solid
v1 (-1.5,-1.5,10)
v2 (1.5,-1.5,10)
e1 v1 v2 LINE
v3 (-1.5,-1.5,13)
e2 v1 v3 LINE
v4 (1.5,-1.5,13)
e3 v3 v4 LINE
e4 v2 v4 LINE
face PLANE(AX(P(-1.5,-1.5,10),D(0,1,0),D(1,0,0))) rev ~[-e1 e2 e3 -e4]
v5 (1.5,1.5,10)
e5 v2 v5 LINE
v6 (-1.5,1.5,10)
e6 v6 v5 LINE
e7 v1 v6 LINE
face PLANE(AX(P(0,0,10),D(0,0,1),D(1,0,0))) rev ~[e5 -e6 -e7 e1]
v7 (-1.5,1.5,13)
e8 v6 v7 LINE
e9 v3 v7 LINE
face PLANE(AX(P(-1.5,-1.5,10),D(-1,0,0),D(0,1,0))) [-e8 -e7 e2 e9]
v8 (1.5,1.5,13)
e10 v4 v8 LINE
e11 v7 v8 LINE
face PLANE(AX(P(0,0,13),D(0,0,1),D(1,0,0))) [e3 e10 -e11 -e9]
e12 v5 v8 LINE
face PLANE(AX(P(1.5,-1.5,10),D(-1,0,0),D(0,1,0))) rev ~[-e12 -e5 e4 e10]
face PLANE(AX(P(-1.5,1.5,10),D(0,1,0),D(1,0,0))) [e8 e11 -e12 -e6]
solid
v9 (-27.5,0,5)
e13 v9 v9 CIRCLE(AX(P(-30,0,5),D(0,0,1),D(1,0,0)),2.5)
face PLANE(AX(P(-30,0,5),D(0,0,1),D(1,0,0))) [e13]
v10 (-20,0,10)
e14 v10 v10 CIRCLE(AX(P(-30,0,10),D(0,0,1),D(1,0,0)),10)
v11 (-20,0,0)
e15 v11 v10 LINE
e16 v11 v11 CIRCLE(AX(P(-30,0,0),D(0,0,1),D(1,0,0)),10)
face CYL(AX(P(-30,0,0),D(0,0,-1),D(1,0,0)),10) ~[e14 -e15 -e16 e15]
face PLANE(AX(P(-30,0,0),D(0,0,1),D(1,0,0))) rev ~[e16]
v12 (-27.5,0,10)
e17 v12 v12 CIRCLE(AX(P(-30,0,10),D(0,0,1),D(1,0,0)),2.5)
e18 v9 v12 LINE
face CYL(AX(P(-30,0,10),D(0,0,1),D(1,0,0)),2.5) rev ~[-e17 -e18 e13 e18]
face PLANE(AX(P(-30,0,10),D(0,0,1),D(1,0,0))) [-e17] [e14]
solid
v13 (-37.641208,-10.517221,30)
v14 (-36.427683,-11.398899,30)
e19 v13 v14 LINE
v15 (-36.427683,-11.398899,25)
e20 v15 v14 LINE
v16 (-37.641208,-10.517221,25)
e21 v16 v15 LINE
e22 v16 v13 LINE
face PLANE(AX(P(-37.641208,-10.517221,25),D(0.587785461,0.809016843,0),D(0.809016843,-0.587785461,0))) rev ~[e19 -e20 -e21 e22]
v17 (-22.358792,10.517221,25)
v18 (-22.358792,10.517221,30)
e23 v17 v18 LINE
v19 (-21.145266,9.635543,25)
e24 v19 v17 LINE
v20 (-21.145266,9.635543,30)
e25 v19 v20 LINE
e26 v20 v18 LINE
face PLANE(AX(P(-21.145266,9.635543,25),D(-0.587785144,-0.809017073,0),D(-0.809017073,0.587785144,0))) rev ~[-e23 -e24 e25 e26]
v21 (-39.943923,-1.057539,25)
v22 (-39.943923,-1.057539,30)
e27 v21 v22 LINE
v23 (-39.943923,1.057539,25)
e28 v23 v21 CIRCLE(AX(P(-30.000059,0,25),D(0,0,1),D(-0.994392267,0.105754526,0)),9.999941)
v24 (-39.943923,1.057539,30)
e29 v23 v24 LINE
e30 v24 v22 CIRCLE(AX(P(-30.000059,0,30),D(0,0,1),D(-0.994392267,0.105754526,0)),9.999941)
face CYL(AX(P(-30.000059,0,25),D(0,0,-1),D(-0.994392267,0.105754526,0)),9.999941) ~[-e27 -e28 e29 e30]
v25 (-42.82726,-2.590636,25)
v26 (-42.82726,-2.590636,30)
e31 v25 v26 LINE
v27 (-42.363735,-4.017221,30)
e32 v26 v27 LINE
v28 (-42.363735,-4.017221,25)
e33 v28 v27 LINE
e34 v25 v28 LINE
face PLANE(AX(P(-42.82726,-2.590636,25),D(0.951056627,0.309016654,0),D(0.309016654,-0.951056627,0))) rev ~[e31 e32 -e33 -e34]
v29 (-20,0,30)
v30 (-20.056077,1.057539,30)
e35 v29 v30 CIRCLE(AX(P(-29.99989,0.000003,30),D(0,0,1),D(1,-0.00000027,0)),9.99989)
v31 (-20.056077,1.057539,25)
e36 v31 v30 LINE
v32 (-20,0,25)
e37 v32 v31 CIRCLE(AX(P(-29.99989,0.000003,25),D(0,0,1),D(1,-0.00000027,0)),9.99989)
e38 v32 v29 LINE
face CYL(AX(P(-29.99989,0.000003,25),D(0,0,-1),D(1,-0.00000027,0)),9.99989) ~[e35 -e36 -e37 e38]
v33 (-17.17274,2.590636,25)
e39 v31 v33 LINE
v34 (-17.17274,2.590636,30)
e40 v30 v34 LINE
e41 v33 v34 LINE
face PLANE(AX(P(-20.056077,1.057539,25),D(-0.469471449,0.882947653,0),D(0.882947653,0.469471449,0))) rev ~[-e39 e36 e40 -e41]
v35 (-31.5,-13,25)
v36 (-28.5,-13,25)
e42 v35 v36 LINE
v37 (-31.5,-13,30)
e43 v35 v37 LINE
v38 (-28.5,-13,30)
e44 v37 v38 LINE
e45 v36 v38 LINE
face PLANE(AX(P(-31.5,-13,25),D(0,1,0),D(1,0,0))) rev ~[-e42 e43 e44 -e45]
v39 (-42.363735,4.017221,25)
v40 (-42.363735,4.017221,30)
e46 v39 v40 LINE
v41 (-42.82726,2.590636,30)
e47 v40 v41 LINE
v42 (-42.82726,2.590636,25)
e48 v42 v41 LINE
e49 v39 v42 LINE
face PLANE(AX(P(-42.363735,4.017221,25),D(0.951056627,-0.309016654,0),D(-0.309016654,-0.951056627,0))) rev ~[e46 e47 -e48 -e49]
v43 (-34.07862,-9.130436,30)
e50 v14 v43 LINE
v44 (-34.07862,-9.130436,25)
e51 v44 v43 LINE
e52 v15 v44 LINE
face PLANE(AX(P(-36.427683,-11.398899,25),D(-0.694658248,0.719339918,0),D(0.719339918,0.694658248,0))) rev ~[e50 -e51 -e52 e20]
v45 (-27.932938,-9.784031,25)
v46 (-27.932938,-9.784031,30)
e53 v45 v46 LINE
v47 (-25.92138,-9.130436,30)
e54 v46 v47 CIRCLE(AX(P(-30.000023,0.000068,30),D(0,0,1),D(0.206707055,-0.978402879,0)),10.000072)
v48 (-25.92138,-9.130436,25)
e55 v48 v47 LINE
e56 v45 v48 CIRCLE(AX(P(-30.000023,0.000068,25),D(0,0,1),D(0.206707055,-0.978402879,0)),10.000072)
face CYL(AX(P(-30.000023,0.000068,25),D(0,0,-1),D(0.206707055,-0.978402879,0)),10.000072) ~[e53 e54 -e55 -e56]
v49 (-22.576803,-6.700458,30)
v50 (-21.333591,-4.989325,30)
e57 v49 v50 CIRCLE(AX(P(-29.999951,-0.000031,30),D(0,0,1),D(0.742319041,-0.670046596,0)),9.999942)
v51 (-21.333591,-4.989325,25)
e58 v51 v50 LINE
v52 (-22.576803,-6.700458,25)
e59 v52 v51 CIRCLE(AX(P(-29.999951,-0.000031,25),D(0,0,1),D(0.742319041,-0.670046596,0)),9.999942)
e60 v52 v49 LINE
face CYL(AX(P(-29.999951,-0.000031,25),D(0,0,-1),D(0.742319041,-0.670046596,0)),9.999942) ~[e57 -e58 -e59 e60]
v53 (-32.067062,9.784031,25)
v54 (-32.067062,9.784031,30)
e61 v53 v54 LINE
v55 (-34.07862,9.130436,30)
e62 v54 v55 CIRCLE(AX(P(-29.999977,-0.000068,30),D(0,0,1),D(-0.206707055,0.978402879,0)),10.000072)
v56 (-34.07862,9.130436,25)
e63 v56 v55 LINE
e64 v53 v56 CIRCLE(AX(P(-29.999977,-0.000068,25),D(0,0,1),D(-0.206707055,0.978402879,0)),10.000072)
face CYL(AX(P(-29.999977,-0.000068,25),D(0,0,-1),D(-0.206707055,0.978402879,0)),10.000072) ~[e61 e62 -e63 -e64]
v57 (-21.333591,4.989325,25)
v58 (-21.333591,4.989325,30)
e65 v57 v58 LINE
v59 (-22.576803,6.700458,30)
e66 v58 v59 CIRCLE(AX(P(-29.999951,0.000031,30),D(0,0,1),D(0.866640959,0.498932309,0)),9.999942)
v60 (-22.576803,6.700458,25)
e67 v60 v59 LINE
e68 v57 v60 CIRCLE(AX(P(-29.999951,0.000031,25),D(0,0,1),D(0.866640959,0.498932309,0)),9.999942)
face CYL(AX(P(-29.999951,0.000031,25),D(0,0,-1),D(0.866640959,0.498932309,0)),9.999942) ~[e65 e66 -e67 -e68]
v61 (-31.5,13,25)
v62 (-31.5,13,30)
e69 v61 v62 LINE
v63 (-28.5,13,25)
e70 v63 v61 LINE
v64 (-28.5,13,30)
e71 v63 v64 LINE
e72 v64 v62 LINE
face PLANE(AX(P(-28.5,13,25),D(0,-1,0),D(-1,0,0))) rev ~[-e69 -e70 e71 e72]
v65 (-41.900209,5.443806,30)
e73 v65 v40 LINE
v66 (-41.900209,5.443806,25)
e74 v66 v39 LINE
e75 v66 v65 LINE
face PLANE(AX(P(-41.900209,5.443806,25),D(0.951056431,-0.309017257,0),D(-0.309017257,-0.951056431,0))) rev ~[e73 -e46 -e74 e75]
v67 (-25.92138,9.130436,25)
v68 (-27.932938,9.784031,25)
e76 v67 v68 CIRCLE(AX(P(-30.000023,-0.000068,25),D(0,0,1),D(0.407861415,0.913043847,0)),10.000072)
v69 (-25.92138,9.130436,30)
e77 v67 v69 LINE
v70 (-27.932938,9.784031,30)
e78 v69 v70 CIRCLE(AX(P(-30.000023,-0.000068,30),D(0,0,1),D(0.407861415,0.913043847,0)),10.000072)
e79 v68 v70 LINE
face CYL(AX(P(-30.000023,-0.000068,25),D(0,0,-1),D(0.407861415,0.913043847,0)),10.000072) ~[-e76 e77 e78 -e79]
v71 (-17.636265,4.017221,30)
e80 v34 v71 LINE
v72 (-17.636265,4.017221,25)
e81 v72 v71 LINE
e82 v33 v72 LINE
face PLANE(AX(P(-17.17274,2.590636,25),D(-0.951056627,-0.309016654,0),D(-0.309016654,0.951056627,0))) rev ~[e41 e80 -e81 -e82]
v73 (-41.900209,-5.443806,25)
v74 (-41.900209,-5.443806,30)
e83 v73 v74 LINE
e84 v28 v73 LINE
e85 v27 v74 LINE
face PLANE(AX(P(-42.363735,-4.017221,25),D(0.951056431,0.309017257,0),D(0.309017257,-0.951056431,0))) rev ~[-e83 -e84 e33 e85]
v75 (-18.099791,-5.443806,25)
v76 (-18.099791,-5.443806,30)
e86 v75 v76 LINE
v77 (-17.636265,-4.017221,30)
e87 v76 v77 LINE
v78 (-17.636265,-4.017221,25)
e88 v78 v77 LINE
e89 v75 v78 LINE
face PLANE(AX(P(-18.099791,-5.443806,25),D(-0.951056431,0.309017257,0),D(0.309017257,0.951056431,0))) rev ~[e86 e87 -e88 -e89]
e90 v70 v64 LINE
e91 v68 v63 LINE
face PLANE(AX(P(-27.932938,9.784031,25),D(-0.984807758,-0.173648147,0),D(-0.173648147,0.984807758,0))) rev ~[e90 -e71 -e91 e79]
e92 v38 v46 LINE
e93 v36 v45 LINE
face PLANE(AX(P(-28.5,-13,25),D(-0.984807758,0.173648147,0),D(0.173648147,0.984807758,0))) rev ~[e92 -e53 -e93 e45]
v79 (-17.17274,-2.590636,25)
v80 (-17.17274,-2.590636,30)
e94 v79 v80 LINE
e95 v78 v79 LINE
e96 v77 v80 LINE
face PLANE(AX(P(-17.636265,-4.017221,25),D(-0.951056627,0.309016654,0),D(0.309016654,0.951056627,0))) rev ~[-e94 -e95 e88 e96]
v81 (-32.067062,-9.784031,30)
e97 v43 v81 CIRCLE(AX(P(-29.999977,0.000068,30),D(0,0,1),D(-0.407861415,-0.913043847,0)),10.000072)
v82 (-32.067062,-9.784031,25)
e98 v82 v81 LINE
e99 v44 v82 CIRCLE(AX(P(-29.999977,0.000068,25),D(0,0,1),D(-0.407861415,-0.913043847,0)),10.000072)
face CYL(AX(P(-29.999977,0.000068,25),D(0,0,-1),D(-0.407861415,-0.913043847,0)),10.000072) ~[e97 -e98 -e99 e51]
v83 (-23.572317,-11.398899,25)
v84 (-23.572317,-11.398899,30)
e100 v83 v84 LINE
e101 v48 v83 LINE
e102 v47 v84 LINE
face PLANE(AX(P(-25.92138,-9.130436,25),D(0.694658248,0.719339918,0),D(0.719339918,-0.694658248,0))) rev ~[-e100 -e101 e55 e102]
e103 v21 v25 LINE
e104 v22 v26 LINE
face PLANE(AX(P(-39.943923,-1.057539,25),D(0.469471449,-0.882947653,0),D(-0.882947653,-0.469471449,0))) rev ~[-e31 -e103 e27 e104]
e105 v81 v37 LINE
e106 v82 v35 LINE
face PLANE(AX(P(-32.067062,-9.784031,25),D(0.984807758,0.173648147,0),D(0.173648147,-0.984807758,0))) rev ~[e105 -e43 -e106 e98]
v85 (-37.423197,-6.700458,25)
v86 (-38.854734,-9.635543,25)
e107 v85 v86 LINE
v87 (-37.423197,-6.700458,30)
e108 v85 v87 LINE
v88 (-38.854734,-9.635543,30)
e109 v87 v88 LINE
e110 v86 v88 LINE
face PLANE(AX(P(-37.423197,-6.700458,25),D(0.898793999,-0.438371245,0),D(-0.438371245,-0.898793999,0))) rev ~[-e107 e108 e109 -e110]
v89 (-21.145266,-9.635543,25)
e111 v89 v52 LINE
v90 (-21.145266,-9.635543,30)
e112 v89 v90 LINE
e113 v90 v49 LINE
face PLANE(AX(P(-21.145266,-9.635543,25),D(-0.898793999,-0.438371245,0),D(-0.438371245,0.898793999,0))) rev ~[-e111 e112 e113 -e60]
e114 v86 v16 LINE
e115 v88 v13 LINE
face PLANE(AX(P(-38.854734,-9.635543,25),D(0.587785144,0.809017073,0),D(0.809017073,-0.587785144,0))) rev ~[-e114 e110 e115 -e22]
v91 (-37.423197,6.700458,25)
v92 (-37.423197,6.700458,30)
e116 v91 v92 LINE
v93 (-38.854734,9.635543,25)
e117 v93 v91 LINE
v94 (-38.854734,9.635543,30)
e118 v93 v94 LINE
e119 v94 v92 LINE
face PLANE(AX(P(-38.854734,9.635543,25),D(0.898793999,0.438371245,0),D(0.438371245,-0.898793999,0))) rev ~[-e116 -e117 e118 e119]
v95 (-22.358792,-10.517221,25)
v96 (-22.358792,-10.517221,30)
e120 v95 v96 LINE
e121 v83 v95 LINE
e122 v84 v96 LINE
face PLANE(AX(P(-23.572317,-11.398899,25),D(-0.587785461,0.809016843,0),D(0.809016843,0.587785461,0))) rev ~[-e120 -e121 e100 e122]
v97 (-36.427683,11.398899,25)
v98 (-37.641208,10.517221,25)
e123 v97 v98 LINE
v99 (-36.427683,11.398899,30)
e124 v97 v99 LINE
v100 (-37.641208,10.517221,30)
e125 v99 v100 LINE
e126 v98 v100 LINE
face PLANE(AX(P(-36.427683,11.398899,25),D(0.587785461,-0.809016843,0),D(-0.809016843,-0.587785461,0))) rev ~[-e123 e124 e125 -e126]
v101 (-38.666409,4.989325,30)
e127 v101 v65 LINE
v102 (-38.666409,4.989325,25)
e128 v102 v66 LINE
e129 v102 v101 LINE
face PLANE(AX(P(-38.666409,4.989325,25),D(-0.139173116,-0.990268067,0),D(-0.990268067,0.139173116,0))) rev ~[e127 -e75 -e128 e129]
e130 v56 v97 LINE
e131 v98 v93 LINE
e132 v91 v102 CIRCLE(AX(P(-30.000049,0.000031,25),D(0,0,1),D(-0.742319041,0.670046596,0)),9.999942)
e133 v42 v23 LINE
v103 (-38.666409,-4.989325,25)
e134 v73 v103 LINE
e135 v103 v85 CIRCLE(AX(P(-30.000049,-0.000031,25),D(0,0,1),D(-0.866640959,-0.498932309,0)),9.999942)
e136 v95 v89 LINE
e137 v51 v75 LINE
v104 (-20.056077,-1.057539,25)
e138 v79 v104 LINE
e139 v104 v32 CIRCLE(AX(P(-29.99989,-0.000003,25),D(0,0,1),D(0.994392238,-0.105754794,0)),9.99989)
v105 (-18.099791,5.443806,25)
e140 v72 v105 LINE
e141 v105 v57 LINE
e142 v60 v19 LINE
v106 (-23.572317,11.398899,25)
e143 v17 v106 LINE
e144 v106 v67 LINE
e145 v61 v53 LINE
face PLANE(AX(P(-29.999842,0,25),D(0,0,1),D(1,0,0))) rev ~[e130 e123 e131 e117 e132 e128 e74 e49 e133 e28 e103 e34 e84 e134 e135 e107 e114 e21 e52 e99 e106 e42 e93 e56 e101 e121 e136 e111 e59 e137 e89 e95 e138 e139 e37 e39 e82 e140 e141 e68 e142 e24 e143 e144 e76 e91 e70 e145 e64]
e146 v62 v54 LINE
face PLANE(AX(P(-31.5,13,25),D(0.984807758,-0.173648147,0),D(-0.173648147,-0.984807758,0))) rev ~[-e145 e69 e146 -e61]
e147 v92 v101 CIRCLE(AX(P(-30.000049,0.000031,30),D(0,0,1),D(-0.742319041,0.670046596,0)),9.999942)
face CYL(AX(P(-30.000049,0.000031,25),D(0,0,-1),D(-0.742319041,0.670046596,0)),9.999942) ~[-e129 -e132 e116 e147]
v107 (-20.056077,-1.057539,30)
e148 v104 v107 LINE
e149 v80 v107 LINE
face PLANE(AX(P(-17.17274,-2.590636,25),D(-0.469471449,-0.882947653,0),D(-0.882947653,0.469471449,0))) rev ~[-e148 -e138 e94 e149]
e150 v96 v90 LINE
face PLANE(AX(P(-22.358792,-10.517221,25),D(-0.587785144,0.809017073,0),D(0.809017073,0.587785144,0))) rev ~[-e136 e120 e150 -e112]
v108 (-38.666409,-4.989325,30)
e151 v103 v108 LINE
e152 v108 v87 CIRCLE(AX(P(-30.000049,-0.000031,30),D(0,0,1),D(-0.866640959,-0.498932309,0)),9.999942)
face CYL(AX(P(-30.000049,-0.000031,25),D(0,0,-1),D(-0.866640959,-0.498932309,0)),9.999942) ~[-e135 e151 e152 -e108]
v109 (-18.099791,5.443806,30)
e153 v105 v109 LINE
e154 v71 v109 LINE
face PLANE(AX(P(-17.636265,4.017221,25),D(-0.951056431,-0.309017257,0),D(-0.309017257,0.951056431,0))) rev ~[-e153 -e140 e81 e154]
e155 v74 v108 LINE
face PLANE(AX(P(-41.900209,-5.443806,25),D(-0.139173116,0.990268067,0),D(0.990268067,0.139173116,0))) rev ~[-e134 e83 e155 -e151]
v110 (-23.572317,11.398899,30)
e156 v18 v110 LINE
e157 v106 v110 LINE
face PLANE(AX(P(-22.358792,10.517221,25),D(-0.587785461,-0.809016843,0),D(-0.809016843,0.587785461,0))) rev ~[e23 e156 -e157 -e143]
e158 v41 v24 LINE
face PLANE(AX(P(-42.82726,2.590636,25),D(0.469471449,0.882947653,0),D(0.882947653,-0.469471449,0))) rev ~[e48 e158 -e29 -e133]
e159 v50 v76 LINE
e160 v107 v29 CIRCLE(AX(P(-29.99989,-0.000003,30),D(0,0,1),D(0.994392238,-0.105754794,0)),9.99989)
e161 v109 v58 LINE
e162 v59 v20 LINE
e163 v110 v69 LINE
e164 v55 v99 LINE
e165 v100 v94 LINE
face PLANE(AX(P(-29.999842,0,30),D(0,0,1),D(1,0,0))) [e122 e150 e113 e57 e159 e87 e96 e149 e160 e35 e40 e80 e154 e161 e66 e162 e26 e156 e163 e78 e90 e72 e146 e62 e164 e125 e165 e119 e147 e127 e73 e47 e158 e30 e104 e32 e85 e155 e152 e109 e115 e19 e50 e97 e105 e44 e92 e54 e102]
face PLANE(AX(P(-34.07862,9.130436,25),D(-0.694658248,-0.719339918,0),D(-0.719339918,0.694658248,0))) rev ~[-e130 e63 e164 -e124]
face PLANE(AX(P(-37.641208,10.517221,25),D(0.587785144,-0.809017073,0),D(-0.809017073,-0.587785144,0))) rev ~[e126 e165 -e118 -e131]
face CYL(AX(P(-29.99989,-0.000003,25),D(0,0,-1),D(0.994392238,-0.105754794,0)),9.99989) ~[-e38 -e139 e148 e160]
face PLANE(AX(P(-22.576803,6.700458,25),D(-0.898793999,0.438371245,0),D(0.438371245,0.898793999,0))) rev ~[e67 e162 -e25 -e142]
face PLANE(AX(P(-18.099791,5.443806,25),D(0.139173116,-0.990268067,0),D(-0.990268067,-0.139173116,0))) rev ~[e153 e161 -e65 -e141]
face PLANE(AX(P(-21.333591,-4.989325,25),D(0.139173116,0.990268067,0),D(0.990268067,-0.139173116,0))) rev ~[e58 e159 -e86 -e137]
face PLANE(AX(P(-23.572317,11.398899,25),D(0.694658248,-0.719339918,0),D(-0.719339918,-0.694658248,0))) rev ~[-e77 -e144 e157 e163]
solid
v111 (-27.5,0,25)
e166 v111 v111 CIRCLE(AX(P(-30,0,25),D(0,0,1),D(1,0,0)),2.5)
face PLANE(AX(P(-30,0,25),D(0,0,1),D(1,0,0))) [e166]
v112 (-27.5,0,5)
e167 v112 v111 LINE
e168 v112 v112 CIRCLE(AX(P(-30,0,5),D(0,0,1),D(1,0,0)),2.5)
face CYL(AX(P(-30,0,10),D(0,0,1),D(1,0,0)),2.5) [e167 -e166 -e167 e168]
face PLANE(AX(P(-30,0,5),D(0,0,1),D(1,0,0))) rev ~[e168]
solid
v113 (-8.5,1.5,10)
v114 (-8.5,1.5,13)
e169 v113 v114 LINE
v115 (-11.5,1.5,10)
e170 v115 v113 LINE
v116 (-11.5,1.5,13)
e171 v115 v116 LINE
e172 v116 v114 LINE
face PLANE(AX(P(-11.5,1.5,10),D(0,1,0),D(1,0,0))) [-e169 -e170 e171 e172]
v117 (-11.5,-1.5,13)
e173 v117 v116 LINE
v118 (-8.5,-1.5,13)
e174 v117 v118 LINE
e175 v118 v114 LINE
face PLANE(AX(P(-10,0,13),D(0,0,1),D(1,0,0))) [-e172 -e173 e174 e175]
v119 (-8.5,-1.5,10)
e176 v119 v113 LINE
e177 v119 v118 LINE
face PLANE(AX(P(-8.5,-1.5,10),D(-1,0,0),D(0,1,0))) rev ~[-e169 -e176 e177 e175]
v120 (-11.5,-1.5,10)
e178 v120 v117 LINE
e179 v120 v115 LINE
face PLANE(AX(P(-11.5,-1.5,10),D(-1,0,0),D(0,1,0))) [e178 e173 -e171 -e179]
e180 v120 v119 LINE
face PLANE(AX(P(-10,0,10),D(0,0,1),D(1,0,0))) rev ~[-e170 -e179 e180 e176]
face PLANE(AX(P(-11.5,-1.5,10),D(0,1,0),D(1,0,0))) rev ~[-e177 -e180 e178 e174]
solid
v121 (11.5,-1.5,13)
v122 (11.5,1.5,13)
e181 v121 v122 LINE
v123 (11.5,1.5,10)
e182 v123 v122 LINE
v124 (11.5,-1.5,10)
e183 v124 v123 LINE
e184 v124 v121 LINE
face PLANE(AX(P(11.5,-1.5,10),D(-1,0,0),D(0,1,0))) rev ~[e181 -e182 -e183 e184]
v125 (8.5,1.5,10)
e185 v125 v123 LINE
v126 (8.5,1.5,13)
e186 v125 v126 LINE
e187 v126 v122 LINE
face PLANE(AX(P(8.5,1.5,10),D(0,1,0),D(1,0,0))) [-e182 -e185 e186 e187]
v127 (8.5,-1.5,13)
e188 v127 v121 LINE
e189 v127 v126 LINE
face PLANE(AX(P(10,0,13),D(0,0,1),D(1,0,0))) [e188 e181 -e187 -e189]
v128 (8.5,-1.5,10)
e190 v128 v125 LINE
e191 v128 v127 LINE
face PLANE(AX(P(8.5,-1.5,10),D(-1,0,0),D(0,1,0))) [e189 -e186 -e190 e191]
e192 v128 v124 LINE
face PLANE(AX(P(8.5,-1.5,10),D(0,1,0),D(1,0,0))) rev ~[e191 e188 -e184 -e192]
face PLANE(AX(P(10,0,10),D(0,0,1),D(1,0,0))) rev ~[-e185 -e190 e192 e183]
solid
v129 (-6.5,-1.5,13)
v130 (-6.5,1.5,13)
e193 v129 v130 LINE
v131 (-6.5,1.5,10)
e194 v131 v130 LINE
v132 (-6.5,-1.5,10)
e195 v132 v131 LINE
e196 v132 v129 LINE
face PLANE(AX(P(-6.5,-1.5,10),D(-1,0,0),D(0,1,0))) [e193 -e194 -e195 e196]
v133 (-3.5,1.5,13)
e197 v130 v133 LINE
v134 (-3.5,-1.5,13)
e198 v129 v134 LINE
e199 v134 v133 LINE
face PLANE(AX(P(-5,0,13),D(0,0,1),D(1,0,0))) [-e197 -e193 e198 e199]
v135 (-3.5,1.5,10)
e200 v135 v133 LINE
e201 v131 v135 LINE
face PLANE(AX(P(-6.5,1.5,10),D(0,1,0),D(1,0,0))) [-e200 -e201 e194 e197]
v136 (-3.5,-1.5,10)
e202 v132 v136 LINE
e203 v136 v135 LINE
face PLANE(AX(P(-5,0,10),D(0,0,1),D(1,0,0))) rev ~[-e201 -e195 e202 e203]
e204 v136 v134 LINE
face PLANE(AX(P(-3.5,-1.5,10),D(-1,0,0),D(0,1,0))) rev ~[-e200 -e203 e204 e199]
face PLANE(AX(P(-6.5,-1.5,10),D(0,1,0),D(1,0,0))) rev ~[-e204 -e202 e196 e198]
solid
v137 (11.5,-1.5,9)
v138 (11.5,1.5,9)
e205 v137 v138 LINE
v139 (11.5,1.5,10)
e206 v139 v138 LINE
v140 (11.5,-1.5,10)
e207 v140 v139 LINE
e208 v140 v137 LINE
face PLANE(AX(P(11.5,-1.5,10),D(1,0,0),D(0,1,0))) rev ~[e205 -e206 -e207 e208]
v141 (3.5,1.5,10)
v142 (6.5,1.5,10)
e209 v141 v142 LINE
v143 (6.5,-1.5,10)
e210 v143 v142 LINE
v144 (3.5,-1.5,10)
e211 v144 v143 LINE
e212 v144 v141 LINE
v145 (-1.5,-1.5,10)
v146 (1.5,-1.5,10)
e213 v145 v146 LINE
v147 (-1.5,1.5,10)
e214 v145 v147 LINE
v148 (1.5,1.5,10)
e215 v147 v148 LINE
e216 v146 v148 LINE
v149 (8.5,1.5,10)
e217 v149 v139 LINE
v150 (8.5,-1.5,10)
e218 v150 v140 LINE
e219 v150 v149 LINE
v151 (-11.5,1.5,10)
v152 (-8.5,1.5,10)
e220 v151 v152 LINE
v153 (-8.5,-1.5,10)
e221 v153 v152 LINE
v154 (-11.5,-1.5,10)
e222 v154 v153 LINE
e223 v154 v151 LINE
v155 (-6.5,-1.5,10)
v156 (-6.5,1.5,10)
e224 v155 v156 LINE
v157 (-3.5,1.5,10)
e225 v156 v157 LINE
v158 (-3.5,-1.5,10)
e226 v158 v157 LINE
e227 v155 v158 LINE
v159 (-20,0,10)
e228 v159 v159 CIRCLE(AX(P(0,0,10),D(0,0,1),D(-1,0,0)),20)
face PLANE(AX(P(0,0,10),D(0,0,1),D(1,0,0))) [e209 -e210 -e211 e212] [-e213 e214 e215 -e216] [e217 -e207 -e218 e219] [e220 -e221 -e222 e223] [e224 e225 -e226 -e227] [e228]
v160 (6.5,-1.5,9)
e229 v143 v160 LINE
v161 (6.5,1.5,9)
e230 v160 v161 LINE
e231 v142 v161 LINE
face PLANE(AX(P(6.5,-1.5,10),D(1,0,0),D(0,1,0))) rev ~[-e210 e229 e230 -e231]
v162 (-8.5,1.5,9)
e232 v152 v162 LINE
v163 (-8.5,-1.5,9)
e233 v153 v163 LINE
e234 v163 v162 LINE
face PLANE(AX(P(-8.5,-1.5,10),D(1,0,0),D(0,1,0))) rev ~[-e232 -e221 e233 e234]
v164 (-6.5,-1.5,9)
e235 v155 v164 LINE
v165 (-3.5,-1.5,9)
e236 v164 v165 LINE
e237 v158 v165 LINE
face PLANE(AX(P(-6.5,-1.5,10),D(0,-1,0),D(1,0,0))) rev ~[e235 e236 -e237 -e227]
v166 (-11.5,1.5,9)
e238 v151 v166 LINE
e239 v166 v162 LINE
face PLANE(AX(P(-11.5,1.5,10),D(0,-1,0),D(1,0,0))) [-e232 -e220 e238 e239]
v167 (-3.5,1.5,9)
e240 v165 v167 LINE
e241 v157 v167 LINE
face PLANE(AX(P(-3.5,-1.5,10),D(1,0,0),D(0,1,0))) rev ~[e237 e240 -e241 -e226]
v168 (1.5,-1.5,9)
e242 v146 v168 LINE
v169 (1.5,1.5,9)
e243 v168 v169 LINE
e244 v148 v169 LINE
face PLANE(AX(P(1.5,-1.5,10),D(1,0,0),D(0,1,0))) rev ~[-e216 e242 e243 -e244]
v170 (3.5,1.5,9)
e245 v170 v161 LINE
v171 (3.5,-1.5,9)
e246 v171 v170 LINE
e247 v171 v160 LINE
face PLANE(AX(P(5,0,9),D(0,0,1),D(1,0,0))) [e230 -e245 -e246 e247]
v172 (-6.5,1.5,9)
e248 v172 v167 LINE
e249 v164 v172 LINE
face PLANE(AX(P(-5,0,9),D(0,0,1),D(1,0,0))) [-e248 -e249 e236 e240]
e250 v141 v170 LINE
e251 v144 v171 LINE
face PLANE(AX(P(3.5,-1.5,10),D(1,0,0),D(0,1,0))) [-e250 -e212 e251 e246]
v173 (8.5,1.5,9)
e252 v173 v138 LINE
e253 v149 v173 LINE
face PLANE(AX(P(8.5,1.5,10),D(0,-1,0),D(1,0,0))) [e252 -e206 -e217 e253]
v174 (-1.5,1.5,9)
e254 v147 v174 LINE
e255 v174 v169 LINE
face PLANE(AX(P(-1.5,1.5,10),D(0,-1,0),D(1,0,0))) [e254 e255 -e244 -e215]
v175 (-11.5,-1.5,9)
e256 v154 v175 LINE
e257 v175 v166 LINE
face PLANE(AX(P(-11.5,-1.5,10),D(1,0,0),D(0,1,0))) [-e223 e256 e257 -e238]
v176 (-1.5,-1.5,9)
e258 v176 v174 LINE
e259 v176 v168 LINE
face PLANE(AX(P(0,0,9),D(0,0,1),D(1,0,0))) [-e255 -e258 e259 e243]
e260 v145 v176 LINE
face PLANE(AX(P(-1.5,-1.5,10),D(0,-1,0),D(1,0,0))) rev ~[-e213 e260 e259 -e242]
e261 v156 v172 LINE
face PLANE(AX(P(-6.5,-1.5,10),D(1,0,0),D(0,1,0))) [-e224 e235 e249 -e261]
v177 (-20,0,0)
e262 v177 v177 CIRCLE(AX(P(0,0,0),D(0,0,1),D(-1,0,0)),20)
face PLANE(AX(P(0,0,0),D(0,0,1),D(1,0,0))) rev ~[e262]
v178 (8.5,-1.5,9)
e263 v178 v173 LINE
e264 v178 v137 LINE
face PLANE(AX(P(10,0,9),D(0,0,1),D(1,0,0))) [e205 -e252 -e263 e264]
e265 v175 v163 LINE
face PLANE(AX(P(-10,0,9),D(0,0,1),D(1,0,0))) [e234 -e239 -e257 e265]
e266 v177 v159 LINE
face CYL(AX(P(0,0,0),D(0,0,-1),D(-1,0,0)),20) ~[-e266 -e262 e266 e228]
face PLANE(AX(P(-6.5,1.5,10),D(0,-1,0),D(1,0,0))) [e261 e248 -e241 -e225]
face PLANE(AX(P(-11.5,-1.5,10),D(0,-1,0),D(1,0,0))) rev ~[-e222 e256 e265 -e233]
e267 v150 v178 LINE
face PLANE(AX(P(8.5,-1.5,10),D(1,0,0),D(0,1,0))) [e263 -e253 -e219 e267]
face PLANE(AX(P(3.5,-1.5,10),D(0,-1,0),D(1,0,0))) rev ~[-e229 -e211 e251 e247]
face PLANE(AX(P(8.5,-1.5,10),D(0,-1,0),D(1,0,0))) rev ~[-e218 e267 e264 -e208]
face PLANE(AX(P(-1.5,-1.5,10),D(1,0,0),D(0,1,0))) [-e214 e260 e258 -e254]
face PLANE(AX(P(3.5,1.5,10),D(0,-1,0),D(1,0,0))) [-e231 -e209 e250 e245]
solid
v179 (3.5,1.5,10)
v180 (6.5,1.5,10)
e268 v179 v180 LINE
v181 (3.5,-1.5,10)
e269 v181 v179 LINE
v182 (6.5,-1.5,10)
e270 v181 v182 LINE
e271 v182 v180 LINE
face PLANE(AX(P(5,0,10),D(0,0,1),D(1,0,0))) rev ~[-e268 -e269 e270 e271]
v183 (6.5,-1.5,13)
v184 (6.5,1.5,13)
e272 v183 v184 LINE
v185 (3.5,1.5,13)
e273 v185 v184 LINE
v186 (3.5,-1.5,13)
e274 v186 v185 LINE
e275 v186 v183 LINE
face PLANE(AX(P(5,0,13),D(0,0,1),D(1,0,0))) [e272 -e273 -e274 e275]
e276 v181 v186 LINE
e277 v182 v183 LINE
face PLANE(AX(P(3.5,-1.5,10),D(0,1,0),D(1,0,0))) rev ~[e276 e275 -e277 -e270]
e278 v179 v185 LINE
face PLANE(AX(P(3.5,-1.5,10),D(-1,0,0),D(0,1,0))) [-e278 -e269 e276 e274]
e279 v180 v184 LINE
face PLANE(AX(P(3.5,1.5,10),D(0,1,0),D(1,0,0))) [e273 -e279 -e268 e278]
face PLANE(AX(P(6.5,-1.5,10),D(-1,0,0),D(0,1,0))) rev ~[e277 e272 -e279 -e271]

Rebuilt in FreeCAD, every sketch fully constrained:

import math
import FreeCAD as App
import Part
import Sketcher
from FreeCAD import Vector
Q = App.Units.Quantity


def add_polygon(sketch, points):
    """Adds a closed chain of lines whose ends are joined by coincident constraints."""
    first, n = sketch.GeometryCount, len(points)
    for a, b in zip(points, points[1:] + points[:1]):
        sketch.addGeometry(Part.LineSegment(App.Vector(*a, 0), App.Vector(*b, 0)), False)
    for i in range(n):
        sketch.addConstraint(Sketcher.Constraint("Coincident", first + i, 2, first + (i + 1) % n, 1))

doc = App.newDocument("Part")
body = doc.addObject("PartDesign::Body", "Body")
body.AllowCompound = True

# Sketch on XY plane
sketch1 = body.newObject("Sketcher::SketchObject", "Sketch")
sketch1.AttachmentSupport = (doc.getObject("XY_Plane"), [""])
sketch1.MapMode = "FlatFace"
sketch1.addGeometry(Part.Circle(Vector(0, 0, 0), Vector(0, 0, 1), 20), False)
sketch1.addGeometry(Part.Circle(Vector(-30, 0, 0), Vector(0, 0, 1), 10), False)
sketch1.addConstraint(Sketcher.Constraint("Coincident", 0, 3, -1, 1))
sketch1.addConstraint(Sketcher.Constraint("PointOnObject", 1, 3, -1))
sketch1.addConstraint(Sketcher.Constraint("Diameter", 0, 40.0))
sketch1.addConstraint(Sketcher.Constraint("Diameter", 1, 20.0))
sketch1.addConstraint(Sketcher.Constraint("DistanceX", 1, 3, -1, 1, 30.0))
pad1 = body.newObject("PartDesign::Pad", "Pad")
pad1.Profile = sketch1
pad1.Length = 10
body2 = doc.addObject("PartDesign::Body", "Body001")

# Sketch on XY plane
sketch2 = body2.newObject("Sketcher::SketchObject", "Sketch001")
sketch2.AttachmentSupport = (doc.getObject("XY_Plane001"), [""])
sketch2.MapMode = "FlatFace"
sketch2.AttachmentOffset = App.Placement(Vector(0, 0, 10), App.Rotation())
sketch2.addGeometry(Part.Circle(Vector(-30, 0, 0), Vector(0, 0, 1), 2.5), False)
sketch2.addConstraint(Sketcher.Constraint("PointOnObject", 0, 3, -1))
sketch2.addConstraint(Sketcher.Constraint("Diameter", 0, 5.0))
sketch2.addConstraint(Sketcher.Constraint("DistanceX", 0, 3, -1, 1, 30.0))
pad2 = body2.newObject("PartDesign::Pad", "Pad001")
pad2.Profile = sketch2
pad2.Type = "TwoLengths"
pad2.Length = 15
pad2.Length2 = 5
body3 = doc.addObject("PartDesign::Body", "Body002")

# Sketch on XY plane
sketch3 = body3.newObject("Sketcher::SketchObject", "Sketch002")
sketch3.AttachmentSupport = (doc.getObject("XY_Plane002"), [""])
sketch3.MapMode = "FlatFace"
sketch3.AttachmentOffset = App.Placement(Vector(0, 0, 25), App.Rotation())
sketch3.addGeometry(Part.ArcOfCircle(Part.Circle(Vector(-29.99989, -0.000003, 0), Vector(0, 0, 1), 9.99989), math.radians(-6.070655), math.radians(0.000015)), False)
sketch3.addGeometry(Part.ArcOfCircle(Part.Circle(Vector(-29.99989, 0.000003, 0), Vector(0, 0, 1), 9.99989), math.radians(-0.000015), math.radians(6.070655)), False)
sketch3.addGeometry(Part.LineSegment(Vector(-20.056077, 1.057539, 0), Vector(-17.17274, 2.590636, 0)), False)
sketch3.addGeometry(Part.LineSegment(Vector(-17.17274, 2.590636, 0), Vector(-17.636265, 4.017221, 0)), False)
sketch3.addGeometry(Part.LineSegment(Vector(-17.636265, 4.017221, 0), Vector(-18.099791, 5.443806, 0)), False)
sketch3.addGeometry(Part.LineSegment(Vector(-18.099791, 5.443806, 0), Vector(-21.333591, 4.989325, 0)), False)
sketch3.addGeometry(Part.ArcOfCircle(Part.Circle(Vector(-29.999951, 0.000031, 0), Vector(0, 0, 1), 9.999942), math.radians(29.929387), math.radians(42.070661)), False)
sketch3.addGeometry(Part.LineSegment(Vector(-22.576803, 6.700458, 0), Vector(-21.145266, 9.635543, 0)), False)
sketch3.addGeometry(Part.LineSegment(Vector(-21.145266, 9.635543, 0), Vector(-22.358792, 10.517221, 0)), False)
sketch3.addGeometry(Part.LineSegment(Vector(-22.358792, 10.517221, 0), Vector(-23.572317, 11.398899, 0)), False)
sketch3.addGeometry(Part.LineSegment(Vector(-23.572317, 11.398899, 0), Vector(-25.92138, 9.130436, 0)), False)
sketch3.addGeometry(Part.ArcOfCircle(Part.Circle(Vector(-30.000023, -0.000068, 0), Vector(0, 0, 1), 10.000072), math.radians(65.929437), math.radians(78.070553)), False)
sketch3.addGeometry(Part.LineSegment(Vector(-27.932938, 9.784031, 0), Vector(-28.5, 13, 0)), False)
sketch3.addGeometry(Part.LineSegment(Vector(-28.5, 13, 0), Vector(-31.5, 13, 0)), False)
sketch3.addGeometry(Part.LineSegment(Vector(-31.5, 13, 0), Vector(-32.067062, 9.784031, 0)), False)
sketch3.addGeometry(Part.ArcOfCircle(Part.Circle(Vector(-29.999977, -0.000068, 0), Vector(0, 0, 1), 10.000072), math.radians(101.929447), math.radians(114.070563)), False)
sketch3.addGeometry(Part.LineSegment(Vector(-34.07862, 9.130436, 0), Vector(-36.427683, 11.398899, 0)), False)
sketch3.addGeometry(Part.LineSegment(Vector(-36.427683, 11.398899, 0), Vector(-37.641208, 10.517221, 0)), False)
sketch3.addGeometry(Part.LineSegment(Vector(-37.641208, 10.517221, 0), Vector(-38.854734, 9.635543, 0)), False)
sketch3.addGeometry(Part.LineSegment(Vector(-38.854734, 9.635543, 0), Vector(-37.423197, 6.700458, 0)), False)
sketch3.addGeometry(Part.ArcOfCircle(Part.Circle(Vector(-30.000049, 0.000031, 0), Vector(0, 0, 1), 9.999942), math.radians(137.929339), math.radians(150.070613)), False)
sketch3.addGeometry(Part.LineSegment(Vector(-38.666409, 4.989325, 0), Vector(-41.900209, 5.443806, 0)), False)
sketch3.addGeometry(Part.LineSegment(Vector(-41.900209, 5.443806, 0), Vector(-42.363735, 4.017221, 0)), False)
sketch3.addGeometry(Part.LineSegment(Vector(-42.363735, 4.017221, 0), Vector(-42.82726, 2.590636, 0)), False)
sketch3.addGeometry(Part.LineSegment(Vector(-42.82726, 2.590636, 0), Vector(-39.943923, 1.057539, 0)), False)
sketch3.addGeometry(Part.ArcOfCircle(Part.Circle(Vector(-30.000059, 0, 0), Vector(0, 0, 1), 9.999941), math.radians(173.92936), math.radians(186.07064)), False)
sketch3.addGeometry(Part.LineSegment(Vector(-39.943923, -1.057539, 0), Vector(-42.82726, -2.590636, 0)), False)
sketch3.addGeometry(Part.LineSegment(Vector(-42.82726, -2.590636, 0), Vector(-42.363735, -4.017221, 0)), False)
sketch3.addGeometry(Part.LineSegment(Vector(-42.363735, -4.017221, 0), Vector(-41.900209, -5.443806, 0)), False)
sketch3.addGeometry(Part.LineSegment(Vector(-41.900209, -5.443806, 0), Vector(-38.666409, -4.989325, 0)), False)
sketch3.addGeometry(Part.ArcOfCircle(Part.Circle(Vector(-30.000049, -0.000031, 0), Vector(0, 0, 1), 9.999942), math.radians(-150.070613), math.radians(-137.929339)), False)
sketch3.addGeometry(Part.LineSegment(Vector(-37.423197, -6.700458, 0), Vector(-38.854734, -9.635543, 0)), False)
sketch3.addGeometry(Part.LineSegment(Vector(-38.854734, -9.635543, 0), Vector(-37.641208, -10.517221, 0)), False)
sketch3.addGeometry(Part.LineSegment(Vector(-37.641208, -10.517221, 0), Vector(-36.427683, -11.398899, 0)), False)
sketch3.addGeometry(Part.LineSegment(Vector(-36.427683, -11.398899, 0), Vector(-34.07862, -9.130436, 0)), False)
sketch3.addGeometry(Part.ArcOfCircle(Part.Circle(Vector(-29.999977, 0.000068, 0), Vector(0, 0, 1), 10.000072), math.radians(-114.070563), math.radians(-101.929447)), False)
sketch3.addGeometry(Part.LineSegment(Vector(-32.067062, -9.784031, 0), Vector(-31.5, -13, 0)), False)
sketch3.addGeometry(Part.LineSegment(Vector(-31.5, -13, 0), Vector(-28.5, -13, 0)), False)
sketch3.addGeometry(Part.LineSegment(Vector(-28.5, -13, 0), Vector(-27.932938, -9.784031, 0)), False)
sketch3.addGeometry(Part.ArcOfCircle(Part.Circle(Vector(-30.000023, 0.000068, 0), Vector(0, 0, 1), 10.000072), math.radians(-78.070553), math.radians(-65.929437)), False)
sketch3.addGeometry(Part.LineSegment(Vector(-25.92138, -9.130436, 0), Vector(-23.572317, -11.398899, 0)), False)
sketch3.addGeometry(Part.LineSegment(Vector(-23.572317, -11.398899, 0), Vector(-22.358792, -10.517221, 0)), False)
sketch3.addGeometry(Part.LineSegment(Vector(-22.358792, -10.517221, 0), Vector(-21.145266, -9.635543, 0)), False)
sketch3.addGeometry(Part.LineSegment(Vector(-21.145266, -9.635543, 0), Vector(-22.576803, -6.700458, 0)), False)
sketch3.addGeometry(Part.ArcOfCircle(Part.Circle(Vector(-29.999951, -0.000031, 0), Vector(0, 0, 1), 9.999942), math.radians(-42.070661), math.radians(-29.929387)), False)
sketch3.addGeometry(Part.LineSegment(Vector(-21.333591, -4.989325, 0), Vector(-18.099791, -5.443806, 0)), False)
sketch3.addGeometry(Part.LineSegment(Vector(-18.099791, -5.443806, 0), Vector(-17.636265, -4.017221, 0)), False)
sketch3.addGeometry(Part.LineSegment(Vector(-17.636265, -4.017221, 0), Vector(-17.17274, -2.590636, 0)), False)
sketch3.addGeometry(Part.LineSegment(Vector(-17.17274, -2.590636, 0), Vector(-20.056077, -1.057539, 0)), False)
sketch3.addConstraint(Sketcher.Constraint("Tangent", 0, 2, 1, 1))
sketch3.addConstraint(Sketcher.Constraint("Coincident", 1, 2, 2, 1))
sketch3.addConstraint(Sketcher.Constraint("Coincident", 2, 2, 3, 1))
sketch3.addConstraint(Sketcher.Constraint("Coincident", 3, 2, 4, 1))
sketch3.addConstraint(Sketcher.Constraint("Coincident", 4, 2, 5, 1))
sketch3.addConstraint(Sketcher.Constraint("Coincident", 5, 2, 6, 1))
sketch3.addConstraint(Sketcher.Constraint("Coincident", 6, 2, 7, 1))
sketch3.addConstraint(Sketcher.Constraint("Coincident", 7, 2, 8, 1))
sketch3.addConstraint(Sketcher.Constraint("Coincident", 8, 2, 9, 1))
sketch3.addConstraint(Sketcher.Constraint("Coincident", 9, 2, 10, 1))
sketch3.addConstraint(Sketcher.Constraint("Coincident", 10, 2, 11, 1))
sketch3.addConstraint(Sketcher.Constraint("Coincident", 11, 2, 12, 1))
sketch3.addConstraint(Sketcher.Constraint("Coincident", 12, 2, 13, 1))
sketch3.addConstraint(Sketcher.Constraint("Coincident", 13, 2, 14, 1))
sketch3.addConstraint(Sketcher.Constraint("Coincident", 14, 2, 15, 1))
sketch3.addConstraint(Sketcher.Constraint("Coincident", 15, 2, 16, 1))
sketch3.addConstraint(Sketcher.Constraint("Coincident", 16, 2, 17, 1))
sketch3.addConstraint(Sketcher.Constraint("Coincident", 17, 2, 18, 1))
sketch3.addConstraint(Sketcher.Constraint("Coincident", 18, 2, 19, 1))
sketch3.addConstraint(Sketcher.Constraint("Coincident", 19, 2, 20, 1))
sketch3.addConstraint(Sketcher.Constraint("Coincident", 20, 2, 21, 1))
sketch3.addConstraint(Sketcher.Constraint("Coincident", 21, 2, 22, 1))
sketch3.addConstraint(Sketcher.Constraint("Coincident", 22, 2, 23, 1))
sketch3.addConstraint(Sketcher.Constraint("Coincident", 23, 2, 24, 1))
sketch3.addConstraint(Sketcher.Constraint("Coincident", 24, 2, 25, 1))
sketch3.addConstraint(Sketcher.Constraint("Coincident", 25, 2, 26, 1))
sketch3.addConstraint(Sketcher.Constraint("Coincident", 26, 2, 27, 1))
sketch3.addConstraint(Sketcher.Constraint("Coincident", 27, 2, 28, 1))
sketch3.addConstraint(Sketcher.Constraint("Coincident", 28, 2, 29, 1))
sketch3.addConstraint(Sketcher.Constraint("Coincident", 29, 2, 30, 1))
sketch3.addConstraint(Sketcher.Constraint("Coincident", 30, 2, 31, 1))
sketch3.addConstraint(Sketcher.Constraint("Coincident", 31, 2, 32, 1))
sketch3.addConstraint(Sketcher.Constraint("Coincident", 32, 2, 33, 1))
sketch3.addConstraint(Sketcher.Constraint("Coincident", 33, 2, 34, 1))
sketch3.addConstraint(Sketcher.Constraint("Coincident", 34, 2, 35, 1))
sketch3.addConstraint(Sketcher.Constraint("Coincident", 35, 2, 36, 1))
sketch3.addConstraint(Sketcher.Constraint("Coincident", 36, 2, 37, 1))
sketch3.addConstraint(Sketcher.Constraint("Coincident", 37, 2, 38, 1))
sketch3.addConstraint(Sketcher.Constraint("Coincident", 38, 2, 39, 1))
sketch3.addConstraint(Sketcher.Constraint("Coincident", 39, 2, 40, 1))
sketch3.addConstraint(Sketcher.Constraint("Coincident", 40, 2, 41, 1))
sketch3.addConstraint(Sketcher.Constraint("Coincident", 41, 2, 42, 1))
sketch3.addConstraint(Sketcher.Constraint("Coincident", 42, 2, 43, 1))
sketch3.addConstraint(Sketcher.Constraint("Coincident", 43, 2, 44, 1))
sketch3.addConstraint(Sketcher.Constraint("Coincident", 44, 2, 45, 1))
sketch3.addConstraint(Sketcher.Constraint("Coincident", 45, 2, 46, 1))
sketch3.addConstraint(Sketcher.Constraint("Coincident", 46, 2, 47, 1))
sketch3.addConstraint(Sketcher.Constraint("Coincident", 47, 2, 48, 1))
sketch3.addConstraint(Sketcher.Constraint("Coincident", 48, 2, 0, 1))
sketch3.addConstraint(Sketcher.Constraint("Horizontal", 13))
sketch3.addConstraint(Sketcher.Constraint("Horizontal", 37))
sketch3.addConstraint(Sketcher.Constraint("Equal", 0, 1))
sketch3.addConstraint(Sketcher.Constraint("Equal", 11, 15))
sketch3.addConstraint(Sketcher.Constraint("Equal", 6, 20))
sketch3.addConstraint(Sketcher.Constraint("Equal", 20, 25))
sketch3.addConstraint(Sketcher.Constraint("Equal", 25, 30))
sketch3.addConstraint(Sketcher.Constraint("Equal", 15, 35))
sketch3.addConstraint(Sketcher.Constraint("Equal", 35, 39))
sketch3.addConstraint(Sketcher.Constraint("Equal", 30, 44))
sketch3.addConstraint(Sketcher.Constraint("Symmetric", 20, 3, 30, 3, -1))
sketch3.addConstraint(Sketcher.Constraint("Symmetric", 15, 3, 35, 3, -1))
sketch3.addConstraint(Sketcher.Constraint("Symmetric", 11, 3, 39, 3, -1))
sketch3.addConstraint(Sketcher.Constraint("Symmetric", 6, 3, 44, 3, -1))
sketch3.addConstraint(Sketcher.Constraint("Symmetric", 24, 2, 25, 2, -1))
sketch3.addConstraint(Sketcher.Constraint("Symmetric", 23, 2, 26, 2, -1))
sketch3.addConstraint(Sketcher.Constraint("Symmetric", 22, 2, 27, 2, -1))
sketch3.addConstraint(Sketcher.Constraint("Symmetric", 21, 2, 28, 2, -1))
sketch3.addConstraint(Sketcher.Constraint("Symmetric", 18, 2, 31, 2, -1))
sketch3.addConstraint(Sketcher.Constraint("Symmetric", 17, 2, 32, 2, -1))
sketch3.addConstraint(Sketcher.Constraint("Symmetric", 16, 2, 33, 2, -1))
sketch3.addConstraint(Sketcher.Constraint("Symmetric", 13, 2, 36, 2, -1))
sketch3.addConstraint(Sketcher.Constraint("Symmetric", 9, 2, 40, 2, -1))
sketch3.addConstraint(Sketcher.Constraint("Symmetric", 8, 2, 41, 2, -1))
sketch3.addConstraint(Sketcher.Constraint("Symmetric", 7, 2, 42, 2, -1))
sketch3.addConstraint(Sketcher.Constraint("Symmetric", 4, 2, 45, 2, -1))
sketch3.addConstraint(Sketcher.Constraint("Symmetric", 3, 2, 46, 2, -1))
sketch3.addConstraint(Sketcher.Constraint("Symmetric", 2, 2, 47, 2, -1))
sketch3.addConstraint(Sketcher.Constraint("Symmetric", 1, 2, 48, 2, -1))
sketch3.addConstraint(Sketcher.Constraint("PointOnObject", 0, 2, -1))
sketch3.addConstraint(Sketcher.Constraint("Parallel", 3, 4))
sketch3.addConstraint(Sketcher.Constraint("Parallel", 8, 9))
sketch3.addConstraint(Sketcher.Constraint("Parallel", 17, 18))
sketch3.addConstraint(Sketcher.Constraint("Parallel", 22, 23))
sketch3.addConstraint(Sketcher.Constraint("Parallel", 2, 26))
sketch3.addConstraint(Sketcher.Constraint("Parallel", 4, 27))
sketch3.addConstraint(Sketcher.Constraint("Parallel", 5, 29))
sketch3.addConstraint(Sketcher.Constraint("Parallel", 7, 31))
sketch3.addConstraint(Sketcher.Constraint("Parallel", 9, 32))
sketch3.addConstraint(Sketcher.Constraint("Parallel", 10, 34))
sketch3.addConstraint(Sketcher.Constraint("Parallel", 12, 36))
sketch3.addConstraint(Sketcher.Constraint("Parallel", 14, 38))
sketch3.addConstraint(Sketcher.Constraint("Parallel", 16, 40))
sketch3.addConstraint(Sketcher.Constraint("Parallel", 19, 43))
sketch3.addConstraint(Sketcher.Constraint("Parallel", 21, 45))
sketch3.addConstraint(Sketcher.Constraint("Horizontal", 11, 3, 15, 3))
sketch3.addConstraint(Sketcher.Constraint("Horizontal", 6, 3, 20, 3))
sketch3.addConstraint(Sketcher.Constraint("Horizontal", 11, 2, 14, 2))
sketch3.addConstraint(Sketcher.Constraint("Horizontal", 10, 2, 15, 2))
sketch3.addConstraint(Sketcher.Constraint("Horizontal", 9, 2, 16, 2))
sketch3.addConstraint(Sketcher.Constraint("Horizontal", 8, 2, 17, 2))
sketch3.addConstraint(Sketcher.Constraint("Horizontal", 7, 2, 18, 2))
sketch3.addConstraint(Sketcher.Constraint("Horizontal", 6, 2, 19, 2))
sketch3.addConstraint(Sketcher.Constraint("Horizontal", 5, 2, 20, 2))
sketch3.addConstraint(Sketcher.Constraint("Horizontal", 4, 2, 21, 2))
sketch3.addConstraint(Sketcher.Constraint("Horizontal", 3, 2, 22, 2))
sketch3.addConstraint(Sketcher.Constraint("Horizontal", 2, 2, 23, 2))
sketch3.addConstraint(Sketcher.Constraint("Horizontal", 1, 2, 24, 2))
sketch3.addConstraint(Sketcher.Constraint("Horizontal", 35, 2, 38, 2))
sketch3.addConstraint(Sketcher.Constraint("Horizontal", 34, 2, 39, 2))
sketch3.addConstraint(Sketcher.Constraint("Horizontal", 30, 2, 43, 2))
sketch3.addConstraint(Sketcher.Constraint("Horizontal", 29, 2, 44, 2))
sketch3.addConstraint(Sketcher.Constraint("Vertical", 14, 2, 35, 2))
sketch3.addConstraint(Sketcher.Constraint("Equal", 3, 4))
sketch3.addConstraint(Sketcher.Constraint("Equal", 2, 5))
sketch3.addConstraint(Sketcher.Constraint("Equal", 5, 7))
sketch3.addConstraint(Sketcher.Constraint("Equal", 4, 8))
sketch3.addConstraint(Sketcher.Constraint("Equal", 8, 9))
sketch3.addConstraint(Sketcher.Constraint("Equal", 7, 10))
sketch3.addConstraint(Sketcher.Constraint("Equal", 10, 12))
sketch3.addConstraint(Sketcher.Constraint("DistanceX", 13, 2, 13, 1, 3.0))
sketch3.addConstraint(Sketcher.Constraint("Angle", 2, Q("27.999993 deg")))
sketch3.addConstraint(Sketcher.Constraint("Angle", 4, Q("108.000016 deg")))
sketch3.addConstraint(Sketcher.Constraint("Angle", 5, Q("-171.999999 deg")))
sketch3.addConstraint(Sketcher.Constraint("Angle", 7, Q("63.999994 deg")))
sketch3.addConstraint(Sketcher.Constraint("Angle", 8, Q("144.000008 deg")))
sketch3.addConstraint(Sketcher.Constraint("Angle", 10, Q("-136.00001 deg")))
sketch3.addConstraint(Sketcher.Constraint("Angle", 12, Q("99.999998 deg")))
sketch3.addConstraint(Sketcher.Constraint("DistanceX", 0, 2, -1, 1, 20.0))
sketch3.addConstraint(Sketcher.Constraint("DistanceY", -1, 1, 12, 2, 13.0))
sketch3.addConstraint(Sketcher.Constraint("Distance", 3, 1.5))
sketch3.addConstraint(Sketcher.Constraint("DistanceX", 12, 2, -1, 1, 28.5))
sketch3.addConstraint(Sketcher.Constraint("DistanceY", 3, 2, 8, 2, 6.5))
sketch3.addConstraint(Sketcher.Constraint("Radius", 0, 9.99989))
sketch3.addConstraint(Sketcher.Constraint("Radius", 11, 10.000072))
sketch3.addConstraint(Sketcher.Constraint("Radius", 25, 9.999941))
sketch3.addConstraint(Sketcher.Constraint("DistanceX", 7, 2, 3, 2, 3.509001))
sketch3.addConstraint(Sketcher.Constraint("DistanceY", -1, 1, 9, 2, 11.398899))
sketch3.addConstraint(Sketcher.Constraint("DistanceX", 1, 3, 4, 2, 11.900099))
pad3 = body3.newObject("PartDesign::Pad", "Pad002")
pad3.Profile = sketch3
pad3.Length = 5
body.AllowCompound = True
doc.recompute()

body4 = doc.addObject("PartDesign::Body", "Body003")
body4.BaseFeature = body2
boolean = body.newObject("PartDesign::Boolean", "Boolean")
boolean.Type = "Cut"
boolean.addObjects([body4])
doc.recompute()

# Sketch on XY plane
sketch4 = body.newObject("Sketcher::SketchObject", "Sketch003")
sketch4.AttachmentSupport = (doc.getObject("XY_Plane"), [""])
sketch4.MapMode = "FlatFace"
sketch4.AttachmentOffset = App.Placement(Vector(0, 0, 10), App.Rotation())
add_polygon(sketch4, [(-1.5, 1.5), (-1.5, -1.5), (1.5, -1.5), (1.5, 1.5)])  # lines 0-3
add_polygon(sketch4, [(3.5, 1.5), (3.5, -1.5), (6.5, -1.5), (6.5, 1.5)])  # lines 4-7
add_polygon(sketch4, [(8.5, 1.5), (8.5, -1.5), (11.5, -1.5), (11.5, 1.5)])  # lines 8-11
add_polygon(sketch4, [(-6.5, 1.5), (-6.5, -1.5), (-3.5, -1.5), (-3.5, 1.5)])  # lines 12-15
add_polygon(sketch4, [(-11.5, 1.5), (-11.5, -1.5), (-8.5, -1.5), (-8.5, 1.5)])  # lines 16-19
sketch4.addConstraint(Sketcher.Constraint("Vertical", 0))
sketch4.addConstraint(Sketcher.Constraint("Horizontal", 1))
sketch4.addConstraint(Sketcher.Constraint("Vertical", 2))
sketch4.addConstraint(Sketcher.Constraint("Horizontal", 3))
sketch4.addConstraint(Sketcher.Constraint("Vertical", 4))
sketch4.addConstraint(Sketcher.Constraint("Horizontal", 5))
sketch4.addConstraint(Sketcher.Constraint("Vertical", 6))
sketch4.addConstraint(Sketcher.Constraint("Horizontal", 7))
sketch4.addConstraint(Sketcher.Constraint("Vertical", 8))
sketch4.addConstraint(Sketcher.Constraint("Horizontal", 9))
sketch4.addConstraint(Sketcher.Constraint("Vertical", 10))
sketch4.addConstraint(Sketcher.Constraint("Horizontal", 11))
sketch4.addConstraint(Sketcher.Constraint("Vertical", 12))
sketch4.addConstraint(Sketcher.Constraint("Horizontal", 13))
sketch4.addConstraint(Sketcher.Constraint("Vertical", 14))
sketch4.addConstraint(Sketcher.Constraint("Horizontal", 15))
sketch4.addConstraint(Sketcher.Constraint("Vertical", 16))
sketch4.addConstraint(Sketcher.Constraint("Horizontal", 17))
sketch4.addConstraint(Sketcher.Constraint("Vertical", 18))
sketch4.addConstraint(Sketcher.Constraint("Horizontal", 19))
sketch4.addConstraint(Sketcher.Constraint("Symmetric", 0, 2, 2, 2, -1, 1))
sketch4.addConstraint(Sketcher.Constraint("Symmetric", 6, 2, 12, 2, -1, 1))
sketch4.addConstraint(Sketcher.Constraint("Symmetric", 4, 2, 14, 2, -1, 1))
sketch4.addConstraint(Sketcher.Constraint("Symmetric", 10, 2, 16, 2, -1, 1))
sketch4.addConstraint(Sketcher.Constraint("Symmetric", 8, 2, 18, 2, -1, 1))
sketch4.addConstraint(Sketcher.Constraint("Horizontal", 1, 2, 4, 2))
sketch4.addConstraint(Sketcher.Constraint("Horizontal", 3, 2, 6, 2))
sketch4.addConstraint(Sketcher.Constraint("Horizontal", 5, 2, 8, 2))
sketch4.addConstraint(Sketcher.Constraint("Horizontal", 7, 2, 10, 2))
sketch4.addConstraint(Sketcher.Constraint("Equal", 3, 5))
sketch4.addConstraint(Sketcher.Constraint("Equal", 7, 9))
sketch4.addConstraint(Sketcher.Constraint("Equal", 19, 0))
sketch4.addConstraint(Sketcher.Constraint("DistanceX", 1, 1, 1, 2, 3.0))
sketch4.addConstraint(Sketcher.Constraint("DistanceX", 1, 2, 4, 2, 2.0))
sketch4.addConstraint(Sketcher.Constraint("DistanceX", 5, 2, 8, 2, 2.0))
pocket1 = body.newObject("PartDesign::Pocket", "Pocket")
pocket1.Profile = sketch4
pocket1.Length = 1
body5 = doc.addObject("PartDesign::Body", "Body004")
body5.AllowCompound = True

# Sketch on XY plane
sketch5 = body5.newObject("Sketcher::SketchObject", "Sketch004")
sketch5.AttachmentSupport = (doc.getObject("XY_Plane004"), [""])
sketch5.MapMode = "FlatFace"
sketch5.AttachmentOffset = App.Placement(Vector(0, 0, 10), App.Rotation())
add_polygon(sketch5, [(-1.5, 1.5), (-1.5, -1.5), (1.5, -1.5), (1.5, 1.5)])  # lines 0-3
add_polygon(sketch5, [(3.5, 1.5), (3.5, -1.5), (6.5, -1.5), (6.5, 1.5)])  # lines 4-7
add_polygon(sketch5, [(8.5, 1.5), (8.5, -1.5), (11.5, -1.5), (11.5, 1.5)])  # lines 8-11
add_polygon(sketch5, [(-6.5, 1.5), (-6.5, -1.5), (-3.5, -1.5), (-3.5, 1.5)])  # lines 12-15
add_polygon(sketch5, [(-11.5, 1.5), (-11.5, -1.5), (-8.5, -1.5), (-8.5, 1.5)])  # lines 16-19
sketch5.addConstraint(Sketcher.Constraint("Vertical", 0))
sketch5.addConstraint(Sketcher.Constraint("Horizontal", 1))
sketch5.addConstraint(Sketcher.Constraint("Vertical", 2))
sketch5.addConstraint(Sketcher.Constraint("Horizontal", 3))
sketch5.addConstraint(Sketcher.Constraint("Vertical", 4))
sketch5.addConstraint(Sketcher.Constraint("Horizontal", 5))
sketch5.addConstraint(Sketcher.Constraint("Vertical", 6))
sketch5.addConstraint(Sketcher.Constraint("Horizontal", 7))
sketch5.addConstraint(Sketcher.Constraint("Vertical", 8))
sketch5.addConstraint(Sketcher.Constraint("Horizontal", 9))
sketch5.addConstraint(Sketcher.Constraint("Vertical", 10))
sketch5.addConstraint(Sketcher.Constraint("Horizontal", 11))
sketch5.addConstraint(Sketcher.Constraint("Vertical", 12))
sketch5.addConstraint(Sketcher.Constraint("Horizontal", 13))
sketch5.addConstraint(Sketcher.Constraint("Vertical", 14))
sketch5.addConstraint(Sketcher.Constraint("Horizontal", 15))
sketch5.addConstraint(Sketcher.Constraint("Vertical", 16))
sketch5.addConstraint(Sketcher.Constraint("Horizontal", 17))
sketch5.addConstraint(Sketcher.Constraint("Vertical", 18))
sketch5.addConstraint(Sketcher.Constraint("Horizontal", 19))
sketch5.addConstraint(Sketcher.Constraint("Symmetric", 0, 2, 2, 2, -1, 1))
sketch5.addConstraint(Sketcher.Constraint("Symmetric", 6, 2, 12, 2, -1, 1))
sketch5.addConstraint(Sketcher.Constraint("Symmetric", 4, 2, 14, 2, -1, 1))
sketch5.addConstraint(Sketcher.Constraint("Symmetric", 10, 2, 16, 2, -1, 1))
sketch5.addConstraint(Sketcher.Constraint("Symmetric", 8, 2, 18, 2, -1, 1))
sketch5.addConstraint(Sketcher.Constraint("Horizontal", 1, 2, 4, 2))
sketch5.addConstraint(Sketcher.Constraint("Horizontal", 3, 2, 6, 2))
sketch5.addConstraint(Sketcher.Constraint("Horizontal", 5, 2, 8, 2))
sketch5.addConstraint(Sketcher.Constraint("Horizontal", 7, 2, 10, 2))
sketch5.addConstraint(Sketcher.Constraint("Equal", 3, 5))
sketch5.addConstraint(Sketcher.Constraint("Equal", 7, 9))
sketch5.addConstraint(Sketcher.Constraint("Equal", 19, 0))
sketch5.addConstraint(Sketcher.Constraint("DistanceX", 1, 1, 1, 2, 3.0))
sketch5.addConstraint(Sketcher.Constraint("DistanceX", 1, 2, 4, 2, 2.0))
sketch5.addConstraint(Sketcher.Constraint("DistanceX", 5, 2, 8, 2, 2.0))
pad4 = body5.newObject("PartDesign::Pad", "Pad003")
pad4.Profile = sketch5
pad4.Length = 3

doc.recompute()
